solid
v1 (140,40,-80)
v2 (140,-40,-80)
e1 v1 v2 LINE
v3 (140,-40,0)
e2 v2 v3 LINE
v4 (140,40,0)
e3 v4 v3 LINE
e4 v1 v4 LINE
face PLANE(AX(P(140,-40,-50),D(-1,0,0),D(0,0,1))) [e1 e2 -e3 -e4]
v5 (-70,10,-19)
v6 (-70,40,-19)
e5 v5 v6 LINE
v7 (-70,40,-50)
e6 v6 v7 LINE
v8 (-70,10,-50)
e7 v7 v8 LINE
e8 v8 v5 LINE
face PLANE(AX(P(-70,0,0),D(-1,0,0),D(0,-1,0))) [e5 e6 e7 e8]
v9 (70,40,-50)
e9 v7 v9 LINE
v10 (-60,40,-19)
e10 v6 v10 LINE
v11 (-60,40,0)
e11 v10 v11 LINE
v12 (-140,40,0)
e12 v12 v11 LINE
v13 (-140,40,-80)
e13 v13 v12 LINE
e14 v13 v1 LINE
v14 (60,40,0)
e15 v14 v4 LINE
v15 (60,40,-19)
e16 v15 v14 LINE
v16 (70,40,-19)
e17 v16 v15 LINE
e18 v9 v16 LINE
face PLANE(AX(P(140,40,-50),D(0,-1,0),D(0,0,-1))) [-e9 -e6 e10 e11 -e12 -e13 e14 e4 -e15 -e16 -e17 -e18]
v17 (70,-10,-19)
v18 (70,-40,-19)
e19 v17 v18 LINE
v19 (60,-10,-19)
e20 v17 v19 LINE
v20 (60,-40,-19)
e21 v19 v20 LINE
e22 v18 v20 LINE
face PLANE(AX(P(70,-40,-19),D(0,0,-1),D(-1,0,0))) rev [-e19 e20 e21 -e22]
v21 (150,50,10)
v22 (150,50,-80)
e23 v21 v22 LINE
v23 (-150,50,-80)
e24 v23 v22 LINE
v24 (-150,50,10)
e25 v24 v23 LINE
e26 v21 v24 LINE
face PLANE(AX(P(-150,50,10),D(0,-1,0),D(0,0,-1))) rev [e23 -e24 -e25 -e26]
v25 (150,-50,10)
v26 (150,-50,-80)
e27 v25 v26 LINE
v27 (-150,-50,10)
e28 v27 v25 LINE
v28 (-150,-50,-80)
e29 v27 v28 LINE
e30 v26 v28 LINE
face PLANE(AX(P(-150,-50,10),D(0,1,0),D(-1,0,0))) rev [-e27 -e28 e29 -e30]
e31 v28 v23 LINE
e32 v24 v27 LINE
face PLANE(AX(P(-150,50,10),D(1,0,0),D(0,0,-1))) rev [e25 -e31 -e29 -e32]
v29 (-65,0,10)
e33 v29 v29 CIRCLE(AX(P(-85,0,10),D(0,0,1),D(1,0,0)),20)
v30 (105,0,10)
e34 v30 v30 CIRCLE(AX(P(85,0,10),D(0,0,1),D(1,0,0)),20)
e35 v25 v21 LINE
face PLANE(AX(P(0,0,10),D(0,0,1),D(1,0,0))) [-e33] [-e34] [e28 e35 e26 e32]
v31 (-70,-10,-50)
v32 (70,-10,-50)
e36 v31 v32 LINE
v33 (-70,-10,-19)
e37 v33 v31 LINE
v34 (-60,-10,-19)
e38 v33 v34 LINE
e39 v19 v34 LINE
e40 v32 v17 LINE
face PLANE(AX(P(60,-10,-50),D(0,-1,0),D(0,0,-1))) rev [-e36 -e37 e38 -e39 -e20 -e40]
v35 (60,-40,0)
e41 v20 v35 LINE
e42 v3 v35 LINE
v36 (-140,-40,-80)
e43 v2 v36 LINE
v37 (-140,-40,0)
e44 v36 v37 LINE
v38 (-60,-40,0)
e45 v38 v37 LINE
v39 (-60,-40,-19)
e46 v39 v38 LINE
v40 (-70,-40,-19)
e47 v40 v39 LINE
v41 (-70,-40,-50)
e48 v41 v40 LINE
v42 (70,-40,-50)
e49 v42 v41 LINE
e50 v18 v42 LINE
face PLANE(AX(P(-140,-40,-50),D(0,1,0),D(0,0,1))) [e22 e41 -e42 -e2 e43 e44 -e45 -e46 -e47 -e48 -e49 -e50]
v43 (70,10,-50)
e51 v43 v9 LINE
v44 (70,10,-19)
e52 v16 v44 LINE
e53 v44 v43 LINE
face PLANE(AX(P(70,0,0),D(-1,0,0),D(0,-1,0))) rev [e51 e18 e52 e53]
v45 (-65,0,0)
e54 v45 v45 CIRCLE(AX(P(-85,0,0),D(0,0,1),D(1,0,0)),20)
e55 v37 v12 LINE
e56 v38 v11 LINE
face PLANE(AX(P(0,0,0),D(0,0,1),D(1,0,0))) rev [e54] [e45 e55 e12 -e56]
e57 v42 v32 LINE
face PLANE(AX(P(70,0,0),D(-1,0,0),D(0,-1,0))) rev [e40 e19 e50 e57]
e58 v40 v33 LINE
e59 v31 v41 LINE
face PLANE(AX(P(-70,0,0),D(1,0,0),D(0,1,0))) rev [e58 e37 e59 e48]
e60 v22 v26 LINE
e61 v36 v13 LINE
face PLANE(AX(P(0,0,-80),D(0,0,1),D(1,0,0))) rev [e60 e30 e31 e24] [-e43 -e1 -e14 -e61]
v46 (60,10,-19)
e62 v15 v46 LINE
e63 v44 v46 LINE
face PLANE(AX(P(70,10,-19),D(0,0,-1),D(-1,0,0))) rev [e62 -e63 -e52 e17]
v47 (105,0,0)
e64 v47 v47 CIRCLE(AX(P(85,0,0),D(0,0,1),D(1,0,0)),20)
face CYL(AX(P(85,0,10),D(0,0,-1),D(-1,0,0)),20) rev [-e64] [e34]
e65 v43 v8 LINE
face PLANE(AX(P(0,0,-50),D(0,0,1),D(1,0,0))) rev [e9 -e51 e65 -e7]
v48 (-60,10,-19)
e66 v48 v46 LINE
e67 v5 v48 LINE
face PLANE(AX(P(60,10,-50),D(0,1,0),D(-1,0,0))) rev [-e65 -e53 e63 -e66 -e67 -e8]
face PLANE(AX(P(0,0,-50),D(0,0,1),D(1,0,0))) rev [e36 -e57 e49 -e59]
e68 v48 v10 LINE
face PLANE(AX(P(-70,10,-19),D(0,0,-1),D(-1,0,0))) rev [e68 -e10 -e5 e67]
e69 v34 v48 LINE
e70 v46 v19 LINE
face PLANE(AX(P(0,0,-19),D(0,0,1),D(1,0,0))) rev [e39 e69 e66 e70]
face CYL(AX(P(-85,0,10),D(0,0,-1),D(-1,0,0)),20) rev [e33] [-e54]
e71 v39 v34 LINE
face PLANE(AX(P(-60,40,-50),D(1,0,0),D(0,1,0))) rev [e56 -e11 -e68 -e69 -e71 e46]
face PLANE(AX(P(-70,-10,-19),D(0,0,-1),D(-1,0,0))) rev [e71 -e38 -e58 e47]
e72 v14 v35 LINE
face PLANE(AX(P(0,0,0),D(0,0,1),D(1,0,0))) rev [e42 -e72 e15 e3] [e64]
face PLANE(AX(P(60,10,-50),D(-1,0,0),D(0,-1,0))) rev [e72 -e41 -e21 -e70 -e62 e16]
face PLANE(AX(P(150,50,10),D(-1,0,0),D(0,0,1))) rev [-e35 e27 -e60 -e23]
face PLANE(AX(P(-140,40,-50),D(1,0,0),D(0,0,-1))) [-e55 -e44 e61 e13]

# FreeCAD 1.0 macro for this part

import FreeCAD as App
import Part
import Sketcher
from FreeCAD import Vector
Q = App.Units.Quantity

doc = App.newDocument("Part")
body = doc.addObject("PartDesign::Body", "Body")

sketch1 = body.newObject("Sketcher::SketchObject", "Sketch")
sketch1.AttachmentSupport = (doc.getObject("XY_Plane"), [""])
sketch1.MapMode = "FlatFace"
sketch1.addGeometry([
    Part.LineSegment(Vector(-150, 50, 0), Vector(-150, -50, 0)),
    Part.LineSegment(Vector(-150, -50, 0), Vector(150, -50, 0)),
    Part.LineSegment(Vector(150, -50, 0), Vector(150, 50, 0)),
    Part.LineSegment(Vector(150, 50, 0), Vector(-150, 50, 0)),
    Part.Circle(Vector(-85, 0, 0), Vector(0, 0, 1), 20),
    Part.Circle(Vector(85, 0, 0), Vector(0, 0, 1), 20),
], False)
sketch1.addConstraint([
    Sketcher.Constraint("Coincident", 0, 2, 1, 1),
    Sketcher.Constraint("Coincident", 1, 2, 2, 1),
    Sketcher.Constraint("Coincident", 2, 2, 3, 1),
    Sketcher.Constraint("Coincident", 3, 2, 0, 1),
    Sketcher.Constraint("Vertical", 0),
    Sketcher.Constraint("Horizontal", 1),
    Sketcher.Constraint("Vertical", 2),
    Sketcher.Constraint("Horizontal", 3),
    Sketcher.Constraint("Equal", 4, 5),
    Sketcher.Constraint("Symmetric", 4, 3, 5, 3, -1, 1),
    Sketcher.Constraint("Symmetric", 0, 2, 2, 2, -1, 1),
    Sketcher.Constraint("PointOnObject", 4, 3, -1),
    Sketcher.Constraint("Diameter", 4, Q("40 mm")),
    Sketcher.Constraint("DistanceX", 1, 1, 1, 2, Q("300 mm")),
    Sketcher.Constraint("DistanceY", 0, 2, 0, 1, Q("100 mm")),
    Sketcher.Constraint("DistanceX", 4, 3, -1, 1, Q("85 mm")),
])
pad1 = body.newObject("PartDesign::Pad", "Pad")
pad1.Profile = sketch1
pad1.Length = 10

sketch2 = body.newObject("Sketcher::SketchObject", "Sketch001")
sketch2.AttachmentSupport = (doc.getObject("XY_Plane"), [""])
sketch2.MapMode = "FlatFace"
sketch2.addGeometry([
    Part.LineSegment(Vector(150, 50, 0), Vector(150, -50, 0)),
    Part.LineSegment(Vector(150, -50, 0), Vector(-150, -50, 0)),
    Part.LineSegment(Vector(-150, -50, 0), Vector(-150, 50, 0)),
    Part.LineSegment(Vector(-150, 50, 0), Vector(150, 50, 0)),
    Part.LineSegment(Vector(-140, -40, 0), Vector(140, -40, 0)),
    Part.LineSegment(Vector(140, -40, 0), Vector(140, 40, 0)),
    Part.LineSegment(Vector(140, 40, 0), Vector(-140, 40, 0)),
    Part.LineSegment(Vector(-140, 40, 0), Vector(-140, -40, 0)),
], False)
sketch2.addConstraint([
    Sketcher.Constraint("Coincident", 0, 2, 1, 1),
    Sketcher.Constraint("Coincident", 1, 2, 2, 1),
    Sketcher.Constraint("Coincident", 2, 2, 3, 1),
    Sketcher.Constraint("Coincident", 3, 2, 0, 1),
    Sketcher.Constraint("Coincident", 4, 2, 5, 1),
    Sketcher.Constraint("Coincident", 5, 2, 6, 1),
    Sketcher.Constraint("Coincident", 6, 2, 7, 1),
    Sketcher.Constraint("Coincident", 7, 2, 4, 1),
    Sketcher.Constraint("Vertical", 0),
    Sketcher.Constraint("Horizontal", 1),
    Sketcher.Constraint("Vertical", 2),
    Sketcher.Constraint("Horizontal", 3),
    Sketcher.Constraint("Horizontal", 4),
    Sketcher.Constraint("Vertical", 5),
    Sketcher.Constraint("Horizontal", 6),
    Sketcher.Constraint("Vertical", 7),
    Sketcher.Constraint("Symmetric", 0, 2, 2, 2, -1, 1),
    Sketcher.Constraint("Symmetric", 4, 2, 6, 2, -1, 1),
    Sketcher.Constraint("DistanceX", 1, 2, 1, 1, Q("300 mm")),
    Sketcher.Constraint("DistanceX", 4, 1, 4, 2, Q("280 mm")),
    Sketcher.Constraint("DistanceY", 0, 2, 0, 1, Q("100 mm")),
    Sketcher.Constraint("DistanceY", 5, 1, 5, 2, Q("80 mm")),
])
pad2 = body.newObject("PartDesign::Pad", "Pad001")
pad2.Profile = sketch2
pad2.Length = 50
pad2.Reversed = True

sketch3 = body.newObject("Sketcher::SketchObject", "Sketch002")
sketch3.AttachmentSupport = (doc.getObject("XY_Plane"), [""])
sketch3.MapMode = "FlatFace"
sketch3.addGeometry([
    Part.LineSegment(Vector(60, 40, 0), Vector(60, 10, 0)),
    Part.LineSegment(Vector(60, 10, 0), Vector(-60, 10, 0)),
    Part.LineSegment(Vector(-60, 10, 0), Vector(-60, 40, 0)),
    Part.LineSegment(Vector(-60, 40, 0), Vector(60, 40, 0)),
    Part.LineSegment(Vector(60, -10, 0), Vector(60, -40, 0)),
    Part.LineSegment(Vector(60, -40, 0), Vector(-60, -40, 0)),
    Part.LineSegment(Vector(-60, -40, 0), Vector(-60, -10, 0)),
    Part.LineSegment(Vector(-60, -10, 0), Vector(60, -10, 0)),
], False)
sketch3.addConstraint([
    Sketcher.Constraint("Coincident", 0, 2, 1, 1),
    Sketcher.Constraint("Coincident", 1, 2, 2, 1),
    Sketcher.Constraint("Coincident", 2, 2, 3, 1),
    Sketcher.Constraint("Coincident", 3, 2, 0, 1),
    Sketcher.Constraint("Coincident", 4, 2, 5, 1),
    Sketcher.Constraint("Coincident", 5, 2, 6, 1),
    Sketcher.Constraint("Coincident", 6, 2, 7, 1),
    Sketcher.Constraint("Coincident", 7, 2, 4, 1),
    Sketcher.Constraint("Vertical", 0),
    Sketcher.Constraint("Horizontal", 1),
    Sketcher.Constraint("Vertical", 2),
    Sketcher.Constraint("Horizontal", 3),
    Sketcher.Constraint("Vertical", 4),
    Sketcher.Constraint("Horizontal", 5),
    Sketcher.Constraint("Vertical", 6),
    Sketcher.Constraint("Horizontal", 7),
    Sketcher.Constraint("Symmetric", 2, 2, 4, 2, -1, 1),
    Sketcher.Constraint("Symmetric", 0, 2, 6, 2, -1, 1),
    Sketcher.Constraint("Vertical", 3, 2, 4, 2),
    Sketcher.Constraint("DistanceX", 1, 2, 1, 1, Q("120 mm")),
    Sketcher.Constraint("DistanceY", 0, 2, 0, 1, Q("30 mm")),
    Sketcher.Constraint("DistanceY", -1, 1, 0, 2, Q("10 mm")),
])
pad3 = body.newObject("PartDesign::Pad", "Pad002")
pad3.Profile = sketch3
pad3.Length = 50
pad3.Reversed = True

sketch4 = body.newObject("Sketcher::SketchObject", "Sketch003")
sketch4.AttachmentSupport = (doc.getObject("XY_Plane"), [""])
sketch4.MapMode = "FlatFace"
sketch4.addGeometry([
    Part.LineSegment(Vector(60, 10, 0), Vector(60, -10, 0)),
    Part.LineSegment(Vector(60, -10, 0), Vector(-60, -10, 0)),
    Part.LineSegment(Vector(-60, -10, 0), Vector(-60, 10, 0)),
    Part.LineSegment(Vector(-60, 10, 0), Vector(60, 10, 0)),
], False)
sketch4.addConstraint([
    Sketcher.Constraint("Coincident", 0, 2, 1, 1),
    Sketcher.Constraint("Coincident", 1, 2, 2, 1),
    Sketcher.Constraint("Coincident", 2, 2, 3, 1),
    Sketcher.Constraint("Coincident", 3, 2, 0, 1),
    Sketcher.Constraint("Vertical", 0),
    Sketcher.Constraint("Horizontal", 1),
    Sketcher.Constraint("Vertical", 2),
    Sketcher.Constraint("Horizontal", 3),
    Sketcher.Constraint("Symmetric", 0, 2, 2, 2, -1, 1),
    Sketcher.Constraint("DistanceX", 1, 2, 1, 1, Q("120 mm")),
    Sketcher.Constraint("DistanceY", 0, 2, 0, 1, Q("20 mm")),
])
pad4 = body.newObject("PartDesign::Pad", "Pad003")
pad4.Profile = sketch4
pad4.Length = 19
pad4.Reversed = True

sketch5 = body.newObject("Sketcher::SketchObject", "Sketch004")
sketch5.AttachmentSupport = (doc.getObject("YZ_Plane"), [""])
sketch5.MapMode = "FlatFace"
sketch5.AttachmentOffset = App.Placement(Vector(0, 0, 60), App.Rotation())
sketch5.addGeometry([
    Part.LineSegment(Vector(40, -19, 0), Vector(10, -19, 0)),
    Part.LineSegment(Vector(10, -19, 0), Vector(10, -50, 0)),
    Part.LineSegment(Vector(10, -50, 0), Vector(40, -50, 0)),
    Part.LineSegment(Vector(40, -50, 0), Vector(40, -19, 0)),
    Part.LineSegment(Vector(-10, -19, 0), Vector(-40, -19, 0)),
    Part.LineSegment(Vector(-40, -19, 0), Vector(-40, -50, 0)),
    Part.LineSegment(Vector(-40, -50, 0), Vector(-10, -50, 0)),
    Part.LineSegment(Vector(-10, -50, 0), Vector(-10, -19, 0)),
], False)
sketch5.addConstraint([
    Sketcher.Constraint("Coincident", 0, 2, 1, 1),
    Sketcher.Constraint("Coincident", 1, 2, 2, 1),
    Sketcher.Constraint("Coincident", 2, 2, 3, 1),
    Sketcher.Constraint("Coincident", 3, 2, 0, 1),
    Sketcher.Constraint("Coincident", 4, 2, 5, 1),
    Sketcher.Constraint("Coincident", 5, 2, 6, 1),
    Sketcher.Constraint("Coincident", 6, 2, 7, 1),
    Sketcher.Constraint("Coincident", 7, 2, 4, 1),
    Sketcher.Constraint("Horizontal", 0),
    Sketcher.Constraint("Vertical", 1),
    Sketcher.Constraint("Horizontal", 2),
    Sketcher.Constraint("Vertical", 3),
    Sketcher.Constraint("Horizontal", 4),
    Sketcher.Constraint("Vertical", 5),
    Sketcher.Constraint("Horizontal", 6),
    Sketcher.Constraint("Vertical", 7),
    Sketcher.Constraint("Symmetric", 3, 2, 4, 2, -2),
    Sketcher.Constraint("Symmetric", 1, 2, 6, 2, -2),
    Sketcher.Constraint("DistanceX", 0, 2, 0, 1, Q("30 mm")),
    Sketcher.Constraint("DistanceY", 1, 2, 1, 1, Q("31 mm")),
    Sketcher.Constraint("DistanceX", -1, 1, 0, 2, Q("10 mm")),
    Sketcher.Constraint("DistanceY", 0, 2, -1, 1, Q("19 mm")),
])
pad5 = body.newObject("PartDesign::Pad", "Pad004")
pad5.Profile = sketch5
pad5.Length = 10

sketch6 = body.newObject("Sketcher::SketchObject", "Sketch005")
sketch6.AttachmentSupport = (doc.getObject("YZ_Plane"), [""])
sketch6.MapMode = "FlatFace"
sketch6.AttachmentOffset = App.Placement(Vector(0, 0, -60), App.Rotation())
sketch6.addGeometry([
    Part.LineSegment(Vector(40, -50, 0), Vector(10, -50, 0)),
    Part.LineSegment(Vector(10, -50, 0), Vector(10, -19, 0)),
    Part.LineSegment(Vector(10, -19, 0), Vector(40, -19, 0)),
    Part.LineSegment(Vector(40, -19, 0), Vector(40, -50, 0)),
    Part.LineSegment(Vector(-10, -50, 0), Vector(-40, -50, 0)),
    Part.LineSegment(Vector(-40, -50, 0), Vector(-40, -19, 0)),
    Part.LineSegment(Vector(-40, -19, 0), Vector(-10, -19, 0)),
    Part.LineSegment(Vector(-10, -19, 0), Vector(-10, -50, 0)),
], False)
sketch6.addConstraint([
    Sketcher.Constraint("Coincident", 0, 2, 1, 1),
    Sketcher.Constraint("Coincident", 1, 2, 2, 1),
    Sketcher.Constraint("Coincident", 2, 2, 3, 1),
    Sketcher.Constraint("Coincident", 3, 2, 0, 1),
    Sketcher.Constraint("Coincident", 4, 2, 5, 1),
    Sketcher.Constraint("Coincident", 5, 2, 6, 1),
    Sketcher.Constraint("Coincident", 6, 2, 7, 1),
    Sketcher.Constraint("Coincident", 7, 2, 4, 1),
    Sketcher.Constraint("Horizontal", 0),
    Sketcher.Constraint("Vertical", 1),
    Sketcher.Constraint("Horizontal", 2),
    Sketcher.Constraint("Vertical", 3),
    Sketcher.Constraint("Horizontal", 4),
    Sketcher.Constraint("Vertical", 5),
    Sketcher.Constraint("Horizontal", 6),
    Sketcher.Constraint("Vertical", 7),
    Sketcher.Constraint("Symmetric", 3, 2, 4, 2, -2),
    Sketcher.Constraint("Symmetric", 1, 2, 6, 2, -2),
    Sketcher.Constraint("DistanceX", 0, 2, 0, 1, Q("30 mm")),
    Sketcher.Constraint("DistanceY", 1, 1, 1, 2, Q("31 mm")),
    Sketcher.Constraint("DistanceX", -1, 1, 0, 2, Q("10 mm")),
    Sketcher.Constraint("DistanceY", 0, 2, -1, 1, Q("50 mm")),
])
pad6 = body.newObject("PartDesign::Pad", "Pad005")
pad6.Profile = sketch6
pad6.Length = 10
pad6.Reversed = True

sketch7 = body.newObject("Sketcher::SketchObject", "Sketch006")
sketch7.AttachmentSupport = (doc.getObject("XY_Plane"), [""])
sketch7.MapMode = "FlatFace"
sketch7.AttachmentOffset = App.Placement(Vector(0, 0, -50), App.Rotation())
sketch7.addGeometry([
    Part.LineSegment(Vector(150, 50, 0), Vector(150, -50, 0)),
    Part.LineSegment(Vector(150, -50, 0), Vector(-150, -50, 0)),
    Part.LineSegment(Vector(-150, -50, 0), Vector(-150, 50, 0)),
    Part.LineSegment(Vector(-150, 50, 0), Vector(150, 50, 0)),
    Part.LineSegment(Vector(-140, -40, 0), Vector(140, -40, 0)),
    Part.LineSegment(Vector(140, -40, 0), Vector(140, 40, 0)),
    Part.LineSegment(Vector(140, 40, 0), Vector(-140, 40, 0)),
    Part.LineSegment(Vector(-140, 40, 0), Vector(-140, -40, 0)),
], False)
sketch7.addConstraint([
    Sketcher.Constraint("Coincident", 0, 2, 1, 1),
    Sketcher.Constraint("Coincident", 1, 2, 2, 1),
    Sketcher.Constraint("Coincident", 2, 2, 3, 1),
    Sketcher.Constraint("Coincident", 3, 2, 0, 1),
    Sketcher.Constraint("Coincident", 4, 2, 5, 1),
    Sketcher.Constraint("Coincident", 5, 2, 6, 1),
    Sketcher.Constraint("Coincident", 6, 2, 7, 1),
    Sketcher.Constraint("Coincident", 7, 2, 4, 1),
    Sketcher.Constraint("Vertical", 0),
    Sketcher.Constraint("Horizontal", 1),
    Sketcher.Constraint("Vertical", 2),
    Sketcher.Constraint("Horizontal", 3),
    Sketcher.Constraint("Horizontal", 4),
    Sketcher.Constraint("Vertical", 5),
    Sketcher.Constraint("Horizontal", 6),
    Sketcher.Constraint("Vertical", 7),
    Sketcher.Constraint("Symmetric", 0, 2, 2, 2, -1, 1),
    Sketcher.Constraint("Symmetric", 4, 2, 6, 2, -1, 1),
    Sketcher.Constraint("DistanceX", 1, 2, 1, 1, Q("300 mm")),
    Sketcher.Constraint("DistanceX", 4, 1, 4, 2, Q("280 mm")),
    Sketcher.Constraint("DistanceY", 0, 2, 0, 1, Q("100 mm")),
    Sketcher.Constraint("DistanceY", 5, 1, 5, 2, Q("80 mm")),
])
pad7 = body.newObject("PartDesign::Pad", "Pad006")
pad7.Profile = sketch7
pad7.Length = 30
pad7.Reversed = True

doc.recompute()
